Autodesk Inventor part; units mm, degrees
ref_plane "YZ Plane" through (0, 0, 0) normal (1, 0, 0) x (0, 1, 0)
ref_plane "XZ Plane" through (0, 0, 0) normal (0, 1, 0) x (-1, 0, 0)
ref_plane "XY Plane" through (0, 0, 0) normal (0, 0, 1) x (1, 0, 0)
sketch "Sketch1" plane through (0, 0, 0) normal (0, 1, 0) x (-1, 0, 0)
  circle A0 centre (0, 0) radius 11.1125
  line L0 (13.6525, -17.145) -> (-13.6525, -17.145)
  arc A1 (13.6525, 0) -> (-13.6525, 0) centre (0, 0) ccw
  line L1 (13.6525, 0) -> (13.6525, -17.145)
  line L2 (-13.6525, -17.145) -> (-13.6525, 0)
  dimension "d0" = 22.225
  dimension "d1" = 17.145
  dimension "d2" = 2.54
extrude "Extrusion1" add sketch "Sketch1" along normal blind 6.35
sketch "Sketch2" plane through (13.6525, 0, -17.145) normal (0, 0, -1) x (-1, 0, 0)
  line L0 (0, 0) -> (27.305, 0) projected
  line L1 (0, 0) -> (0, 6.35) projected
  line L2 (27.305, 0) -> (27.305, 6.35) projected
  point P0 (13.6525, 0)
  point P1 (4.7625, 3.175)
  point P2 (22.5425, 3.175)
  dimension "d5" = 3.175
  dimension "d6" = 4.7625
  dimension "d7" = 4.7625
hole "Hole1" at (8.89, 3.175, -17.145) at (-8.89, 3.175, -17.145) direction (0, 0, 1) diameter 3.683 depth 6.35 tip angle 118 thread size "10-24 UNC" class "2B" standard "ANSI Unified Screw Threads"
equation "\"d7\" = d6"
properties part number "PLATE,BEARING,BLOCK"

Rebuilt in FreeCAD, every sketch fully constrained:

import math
import FreeCAD as App
import Part
import Sketcher
from FreeCAD import Vector
Q = App.Units.Quantity

doc = App.newDocument("Part")
body = doc.addObject("PartDesign::Body", "Body")

# Sketch on XZ plane
sketch1 = body.newObject("Sketcher::SketchObject", "Sketch")
sketch1.AttachmentSupport = (doc.getObject("XZ_Plane"), [""])
sketch1.MapMode = "FlatFace"
sketch1.addGeometry([
    Part.LineSegment(Vector(14, -17, 0), Vector(-14, -17, 0)),  # 0
    Part.LineSegment(Vector(-14, -17, 0), Vector(-14, 0, 0)),  # 1
    Part.ArcOfCircle(Part.Circle(Vector(0, 0, 0), Vector(0, 0, 1), 14), math.radians(0), math.radians(180)),  # 2
    Part.LineSegment(Vector(14, 0, 0), Vector(14, -17, 0)),  # 3
    Part.Circle(Vector(0, 0, 0), Vector(0, 0, 1), 11),  # 4
], False)
sketch1.addConstraint([
    Sketcher.Constraint("Coincident", 0, 2, 1, 1),
    Sketcher.Constraint("Tangent", 1, 2, 2, 2),
    Sketcher.Constraint("Tangent", 2, 1, 3, 1),
    Sketcher.Constraint("Coincident", 3, 2, 0, 1),
    Sketcher.Constraint("Horizontal", 0),
    Sketcher.Constraint("Vertical", 1),
    Sketcher.Constraint("Vertical", 3),
    Sketcher.Constraint("Coincident", 2, 3, -1, 1),
    Sketcher.Constraint("Coincident", 4, 3, -1, 1),
    Sketcher.Constraint("Diameter", 4, Q("0.875 in")),
    Sketcher.Constraint("DistanceY", 1, 1, 1, 2, Q("0.675 in")),
    Sketcher.Constraint("Radius", 2, Q("0.5375 in")),
])
pad1 = body.newObject("PartDesign::Pad", "Pad")
pad1.Profile = sketch1
pad1.Length = Q("0.25 in")
pad1.Reversed = True

# Sketch on XY plane
sketch2 = body.newObject("Sketcher::SketchObject", "Sketch001")
sketch2.AttachmentSupport = (doc.getObject("XY_Plane"), [""])
sketch2.MapMode = "FlatFace"
sketch2.AttachmentOffset = App.Placement(Vector(0, 0, -0.675 * 25.4), App.Rotation())
sketch2.addGeometry([
    Part.Circle(Vector(8.9, 3.2, 0), Vector(0, 0, 1), 1.8),
    Part.Circle(Vector(-8.9, 3.2, 0), Vector(0, 0, 1), 1.8),
], False)
sketch2.addConstraint([
    Sketcher.Constraint("Equal", 0, 1),
    Sketcher.Constraint("Symmetric", 0, 3, 1, 3, -2),
    Sketcher.Constraint("Diameter", 0, Q("0.145 in")),
    Sketcher.Constraint("DistanceX", 1, 3, 0, 3, Q("0.7 in")),
    Sketcher.Constraint("DistanceY", -1, 1, 0, 3, Q("0.125 in")),
])
doc.recompute()
hole = body.newObject("PartDesign::Hole", "Hole")
hole.Profile = sketch2
hole.ThreadType = "None"
hole.Diameter = Q("0.145 in")
hole.DepthType = "Dimension"
hole.Depth = Q("0.25 in")
hole.DrillPoint = "Angled"
hole.DrillPointAngle = 118
hole.Reversed = True

doc.recompute()
